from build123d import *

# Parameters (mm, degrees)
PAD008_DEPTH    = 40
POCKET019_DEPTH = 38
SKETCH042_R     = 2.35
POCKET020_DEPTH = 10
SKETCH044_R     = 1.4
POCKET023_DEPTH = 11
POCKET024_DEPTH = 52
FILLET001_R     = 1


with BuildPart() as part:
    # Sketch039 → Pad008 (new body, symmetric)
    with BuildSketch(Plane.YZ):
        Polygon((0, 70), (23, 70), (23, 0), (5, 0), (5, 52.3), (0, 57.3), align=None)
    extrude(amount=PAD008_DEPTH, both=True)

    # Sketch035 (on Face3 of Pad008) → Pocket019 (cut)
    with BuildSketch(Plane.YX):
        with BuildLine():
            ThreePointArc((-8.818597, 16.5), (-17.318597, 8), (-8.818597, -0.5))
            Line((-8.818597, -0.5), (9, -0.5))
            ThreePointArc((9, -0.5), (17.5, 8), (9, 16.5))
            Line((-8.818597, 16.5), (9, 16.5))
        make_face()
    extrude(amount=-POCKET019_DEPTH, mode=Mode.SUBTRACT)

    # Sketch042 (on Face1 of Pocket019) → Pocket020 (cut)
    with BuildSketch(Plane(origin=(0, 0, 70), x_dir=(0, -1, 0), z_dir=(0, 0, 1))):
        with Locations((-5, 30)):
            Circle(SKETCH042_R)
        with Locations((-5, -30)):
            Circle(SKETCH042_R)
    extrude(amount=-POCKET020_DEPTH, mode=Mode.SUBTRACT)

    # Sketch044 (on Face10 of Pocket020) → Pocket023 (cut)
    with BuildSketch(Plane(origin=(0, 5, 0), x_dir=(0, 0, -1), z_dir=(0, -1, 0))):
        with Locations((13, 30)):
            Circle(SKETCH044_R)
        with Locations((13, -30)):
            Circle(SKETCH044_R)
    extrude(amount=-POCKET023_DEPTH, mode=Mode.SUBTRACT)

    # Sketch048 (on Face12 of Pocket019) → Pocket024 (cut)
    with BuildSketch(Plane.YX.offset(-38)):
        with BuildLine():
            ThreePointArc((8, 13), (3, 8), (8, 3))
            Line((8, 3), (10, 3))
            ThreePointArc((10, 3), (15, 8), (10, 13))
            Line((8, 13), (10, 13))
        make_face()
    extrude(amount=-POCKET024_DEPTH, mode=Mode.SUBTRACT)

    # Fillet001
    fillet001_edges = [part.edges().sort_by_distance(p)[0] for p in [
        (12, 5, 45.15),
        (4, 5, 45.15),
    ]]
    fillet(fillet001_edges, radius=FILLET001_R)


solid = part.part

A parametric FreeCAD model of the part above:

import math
import FreeCAD as App
import Part
import Sketcher

V = App.Vector
Q = App.Units.Quantity


def edges_at(feature, points):
    """Names of the edges that pass closest to the given points."""
    edges = feature.Shape.Edges
    near = lambda p: min(range(len(edges)), key=lambda i: edges[i].distToShape(Part.Vertex(*p))[0])
    return sorted({f"Edge{near(p) + 1}" for p in points})

doc = App.newDocument("Part")
body = doc.addObject("PartDesign::Body", "Body")

sketch1 = doc.addObject("Sketcher::SketchObject", "Sketch")
body.addObject(sketch1)
sketch1.AttachmentSupport = (doc.YZ_Plane, [""])
sketch1.MapMode = "FlatFace"
sketch1.addGeometry(Part.LineSegment(V(23, 70, 0), V(0, 70, 0)), False)
sketch1.addGeometry(Part.LineSegment(V(0, 70, 0), V(0, 57, 0)), False)
sketch1.addGeometry(Part.LineSegment(V(0, 57, 0), V(5, 52, 0)), False)
sketch1.addGeometry(Part.LineSegment(V(5, 52, 0), V(5, 0, 0)), False)
sketch1.addGeometry(Part.LineSegment(V(5, 0, 0), V(23, 0, 0)), False)
sketch1.addGeometry(Part.LineSegment(V(23, 0, 0), V(23, 70, 0)), False)
sketch1.addConstraint(Sketcher.Constraint("Coincident", 0, 2, 1, 1))
sketch1.addConstraint(Sketcher.Constraint("Coincident", 1, 2, 2, 1))
sketch1.addConstraint(Sketcher.Constraint("Coincident", 2, 2, 3, 1))
sketch1.addConstraint(Sketcher.Constraint("Coincident", 3, 2, 4, 1))
sketch1.addConstraint(Sketcher.Constraint("Coincident", 4, 2, 5, 1))
sketch1.addConstraint(Sketcher.Constraint("Coincident", 5, 2, 0, 1))
sketch1.addConstraint(Sketcher.Constraint("Horizontal", 0))
sketch1.addConstraint(Sketcher.Constraint("Vertical", 1))
sketch1.addConstraint(Sketcher.Constraint("Vertical", 3))
sketch1.addConstraint(Sketcher.Constraint("Horizontal", 4))
sketch1.addConstraint(Sketcher.Constraint("Vertical", 5))
sketch1.addConstraint(Sketcher.Constraint("PointOnObject", 0, 2, -2))
sketch1.addConstraint(Sketcher.Constraint("PointOnObject", 3, 2, -1))
sketch1.addConstraint(Sketcher.Constraint("DistanceX", 0, 2, 0, 1, Q("23 mm")))
sketch1.addConstraint(Sketcher.Constraint("DistanceX", 4, 1, 4, 2, Q("18 mm")))
sketch1.addConstraint(Sketcher.Constraint("DistanceY", 5, 1, 5, 2, Q("70 mm")))
sketch1.addConstraint(Sketcher.Constraint("Angle", 2, Q("-45 deg")))
sketch1.addConstraint(Sketcher.Constraint("DistanceY", 1, 2, 1, 1, Q("12.7 mm")))
pad1 = doc.addObject("PartDesign::Pad", "Pad")
body.addObject(pad1)
pad1.Profile = sketch1
pad1.Length = 80
pad1.Midplane = True

sketch2 = doc.addObject("Sketcher::SketchObject", "Sketch001")
body.addObject(sketch2)
sketch2.AttachmentSupport = (doc.XY_Plane, [""])
sketch2.MapMode = "FlatFace"
sketch2.addGeometry(Part.ArcOfCircle(Part.Circle(V(8, -9, 0), V(0, 0, 1), 8), math.radians(180), math.radians(360)), False)
sketch2.addGeometry(Part.LineSegment(V(0, -9, 0), V(0, 9, 0)), False)
sketch2.addGeometry(Part.ArcOfCircle(Part.Circle(V(8, 9, 0), V(0, 0, 1), 8), math.radians(0), math.radians(180)), False)
sketch2.addGeometry(Part.LineSegment(V(16, 9, 0), V(16, -9, 0)), False)
sketch2.addConstraint(Sketcher.Constraint("Tangent", 0, 1, 1, 1))
sketch2.addConstraint(Sketcher.Constraint("Tangent", 1, 2, 2, 2))
sketch2.addConstraint(Sketcher.Constraint("Tangent", 2, 1, 3, 1))
sketch2.addConstraint(Sketcher.Constraint("Tangent", 3, 2, 0, 2))
sketch2.addConstraint(Sketcher.Constraint("Vertical", 1))
sketch2.addConstraint(Sketcher.Constraint("Vertical", 3))
sketch2.addConstraint(Sketcher.Constraint("Radius", 0, Q("8.5 mm")))
sketch2.addConstraint(Sketcher.Constraint("DistanceX", -1, 1, 0, 3, Q("8 mm")))
sketch2.addConstraint(Sketcher.Constraint("DistanceY", -1, 1, 2, 3, Q("9 mm")))
sketch2.addConstraint(Sketcher.Constraint("DistanceY", 1, 1, 1, 2, Q("17.818597 mm")))
pocket1 = doc.addObject("PartDesign::Pocket", "Pocket")
body.addObject(pocket1)
pocket1.Profile = sketch2
pocket1.Length = 38
pocket1.Reversed = True

sketch3 = doc.addObject("Sketcher::SketchObject", "Sketch002")
body.addObject(sketch3)
sketch3.AttachmentSupport = (doc.XY_Plane, [""])
sketch3.MapMode = "FlatFace"
sketch3.AttachmentOffset = App.Placement(V(0, 0, 70), App.Rotation())
sketch3.addGeometry(Part.Circle(V(30, 5, 0), V(0, 0, 1), 2.4), False)
sketch3.addGeometry(Part.Circle(V(-30, 5, 0), V(0, 0, 1), 2.4), False)
sketch3.addConstraint(Sketcher.Constraint("Equal", 0, 1))
sketch3.addConstraint(Sketcher.Constraint("Symmetric", 0, 3, 1, 3, -2))
sketch3.addConstraint(Sketcher.Constraint("Diameter", 0, Q("4.7 mm")))
sketch3.addConstraint(Sketcher.Constraint("DistanceX", -1, 1, 0, 3, Q("30 mm")))
sketch3.addConstraint(Sketcher.Constraint("DistanceY", -1, 1, 0, 3, Q("5 mm")))
pocket2 = doc.addObject("PartDesign::Pocket", "Pocket001")
body.addObject(pocket2)
pocket2.Profile = sketch3
pocket2.Length = 10

sketch4 = doc.addObject("Sketcher::SketchObject", "Sketch003")
body.addObject(sketch4)
sketch4.AttachmentSupport = (doc.XZ_Plane, [""])
sketch4.MapMode = "FlatFace"
sketch4.AttachmentOffset = App.Placement(V(0, 0, -5), App.Rotation())
sketch4.addGeometry(Part.Circle(V(30, -13, 0), V(0, 0, 1), 1.4), False)
sketch4.addGeometry(Part.Circle(V(-30, -13, 0), V(0, 0, 1), 1.4), False)
sketch4.addConstraint(Sketcher.Constraint("Equal", 0, 1))
sketch4.addConstraint(Sketcher.Constraint("Symmetric", 0, 3, 1, 3, -2))
sketch4.addConstraint(Sketcher.Constraint("Diameter", 0, Q("2.8 mm")))
sketch4.addConstraint(Sketcher.Constraint("DistanceX", -1, 1, 0, 3, Q("30 mm")))
sketch4.addConstraint(Sketcher.Constraint("DistanceY", 0, 3, -1, 1, Q("13 mm")))
pocket3 = doc.addObject("PartDesign::Pocket", "Pocket002")
body.addObject(pocket3)
pocket3.Profile = sketch4
pocket3.Length = 11

sketch5 = doc.addObject("Sketcher::SketchObject", "Sketch004")
body.addObject(sketch5)
sketch5.AttachmentSupport = (doc.XY_Plane, [""])
sketch5.MapMode = "FlatFace"
sketch5.AttachmentOffset = App.Placement(V(0, 0, 38), App.Rotation())
sketch5.addGeometry(Part.ArcOfCircle(Part.Circle(V(8, 8, 0), V(0, 0, 1), 5), math.radians(180), math.radians(360)), False)
sketch5.addGeometry(Part.LineSegment(V(3, 8, 0), V(3, 10, 0)), False)
sketch5.addGeometry(Part.ArcOfCircle(Part.Circle(V(8, 10, 0), V(0, 0, 1), 5), math.radians(0), math.radians(180)), False)
sketch5.addGeometry(Part.LineSegment(V(13, 10, 0), V(13, 8, 0)), False)
sketch5.addConstraint(Sketcher.Constraint("Tangent", 0, 1, 1, 1))
sketch5.addConstraint(Sketcher.Constraint("Tangent", 1, 2, 2, 2))
sketch5.addConstraint(Sketcher.Constraint("Tangent", 2, 1, 3, 1))
sketch5.addConstraint(Sketcher.Constraint("Tangent", 3, 2, 0, 2))
sketch5.addConstraint(Sketcher.Constraint("Vertical", 1))
sketch5.addConstraint(Sketcher.Constraint("Vertical", 3))
sketch5.addConstraint(Sketcher.Constraint("Radius", 0, Q("5 mm")))
sketch5.addConstraint(Sketcher.Constraint("DistanceY", 1, 1, 1, 2, Q("2 mm")))
sketch5.addConstraint(Sketcher.Constraint("DistanceX", -1, 1, 0, 3, Q("8 mm")))
sketch5.addConstraint(Sketcher.Constraint("DistanceY", -1, 1, 0, 3, Q("8 mm")))
pocket4 = doc.addObject("PartDesign::Pocket", "Pocket003")
body.addObject(pocket4)
pocket4.Profile = sketch5
pocket4.Length = 52
pocket4.Reversed = True
doc.recompute()

fillet = doc.addObject("PartDesign::Fillet", "Fillet")
body.addObject(fillet)
fillet.Base = (pocket4, edges_at(pocket4, [(12, 5, 45.15), (4, 5, 45.15)]))
fillet.Radius = 1

doc.recompute()
